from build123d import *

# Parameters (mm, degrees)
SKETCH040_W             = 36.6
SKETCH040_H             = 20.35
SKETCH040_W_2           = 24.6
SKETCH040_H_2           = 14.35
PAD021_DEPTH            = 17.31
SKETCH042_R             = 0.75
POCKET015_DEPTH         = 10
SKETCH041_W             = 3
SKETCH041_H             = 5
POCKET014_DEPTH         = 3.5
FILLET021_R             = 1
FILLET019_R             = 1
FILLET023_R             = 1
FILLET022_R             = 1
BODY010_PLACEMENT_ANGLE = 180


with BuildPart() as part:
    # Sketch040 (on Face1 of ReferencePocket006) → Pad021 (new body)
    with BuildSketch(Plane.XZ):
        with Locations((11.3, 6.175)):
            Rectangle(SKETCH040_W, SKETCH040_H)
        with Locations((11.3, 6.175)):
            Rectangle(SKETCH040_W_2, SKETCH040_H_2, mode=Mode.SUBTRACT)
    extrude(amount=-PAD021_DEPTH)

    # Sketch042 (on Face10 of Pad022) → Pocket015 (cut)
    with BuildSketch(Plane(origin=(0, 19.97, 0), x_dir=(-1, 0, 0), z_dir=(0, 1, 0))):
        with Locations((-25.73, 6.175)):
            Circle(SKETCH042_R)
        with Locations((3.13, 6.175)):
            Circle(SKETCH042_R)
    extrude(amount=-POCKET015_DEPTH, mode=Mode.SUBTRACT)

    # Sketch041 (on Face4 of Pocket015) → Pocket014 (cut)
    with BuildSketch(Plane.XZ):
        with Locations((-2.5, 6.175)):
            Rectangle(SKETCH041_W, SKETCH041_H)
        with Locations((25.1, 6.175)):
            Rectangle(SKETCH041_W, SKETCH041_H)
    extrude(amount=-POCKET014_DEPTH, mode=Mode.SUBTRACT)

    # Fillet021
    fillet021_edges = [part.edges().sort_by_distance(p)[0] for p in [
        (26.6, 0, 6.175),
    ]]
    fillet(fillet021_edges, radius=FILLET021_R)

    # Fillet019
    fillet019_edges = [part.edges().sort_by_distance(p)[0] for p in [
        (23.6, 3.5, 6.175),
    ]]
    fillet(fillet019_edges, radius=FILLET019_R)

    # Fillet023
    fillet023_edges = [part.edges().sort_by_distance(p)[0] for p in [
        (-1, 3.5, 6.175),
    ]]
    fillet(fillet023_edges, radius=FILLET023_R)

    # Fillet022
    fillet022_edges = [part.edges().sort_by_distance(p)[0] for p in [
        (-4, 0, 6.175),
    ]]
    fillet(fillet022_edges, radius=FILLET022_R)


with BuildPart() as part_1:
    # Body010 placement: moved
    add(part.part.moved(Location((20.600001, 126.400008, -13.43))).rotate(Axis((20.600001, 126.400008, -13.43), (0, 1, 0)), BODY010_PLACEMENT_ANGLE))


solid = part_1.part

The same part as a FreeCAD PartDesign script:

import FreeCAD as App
import Part
import Sketcher
from FreeCAD import Vector


def edges_at(feature, points):
    """Names of the edges that pass closest to the given points."""
    edges = feature.Shape.Edges
    near = lambda p: min(range(len(edges)), key=lambda i: edges[i].distToShape(Part.Vertex(*p))[0])
    return sorted({f"Edge{near(p) + 1}" for p in points})


def add_polygon(sketch, points):
    """Adds a closed chain of lines whose ends are joined by coincident constraints."""
    first, n = sketch.GeometryCount, len(points)
    for a, b in zip(points, points[1:] + points[:1]):
        sketch.addGeometry(Part.LineSegment(App.Vector(*a, 0), App.Vector(*b, 0)), False)
    for i in range(n):
        sketch.addConstraint(Sketcher.Constraint("Coincident", first + i, 2, first + (i + 1) % n, 1))

doc = App.newDocument("Part")
params = doc.addObject("Spreadsheet::Sheet", "Params")
for row, (alias, value) in enumerate([
    ("sketch1_width", "36.6 mm"),
    ("sketch1_width2", "24.6 mm"),
    ("sketch1_height", "20.35 mm"),
    ("pad1_length", "17.31 mm"),
    ("sketch2_diameter", "1.5 mm"),
    ("pocket1_length", "10 mm"),
    ("sketch3_width", "3 mm"),
    ("sketch3_height", "5 mm"),
    ("pocket2_length", "3.5 mm"),
    ("fillet_radius", "1 mm"),
    ("fillet2_radius", "1 mm"),
    ("fillet3_radius", "1 mm"),
    ("fillet4_radius", "1 mm"),
], start=1):
    params.set(f"A{row}", alias)
    params.set(f"B{row}", "=" + value)
    params.setAlias(f"B{row}", alias)

body = doc.addObject("PartDesign::Body", "Body")

# Sketch on XZ plane
sketch1 = body.newObject("Sketcher::SketchObject", "Sketch")
sketch1.AttachmentSupport = (doc.getObject("XZ_Plane"), [""])
sketch1.MapMode = "FlatFace"
add_polygon(sketch1, [(-7, 16.35), (-7, -4), (29.6, -4), (29.6, 16.35)])  # lines 0-3
add_polygon(sketch1, [(23.6, -1), (-1, -1), (-1, 13.35), (23.6, 13.35)])  # lines 4-7
sketch1.addConstraint(Sketcher.Constraint("Vertical", 0))
sketch1.addConstraint(Sketcher.Constraint("Horizontal", 1))
sketch1.addConstraint(Sketcher.Constraint("Vertical", 2))
sketch1.addConstraint(Sketcher.Constraint("Horizontal", 3))
sketch1.addConstraint(Sketcher.Constraint("Horizontal", 4))
sketch1.addConstraint(Sketcher.Constraint("Vertical", 5))
sketch1.addConstraint(Sketcher.Constraint("Horizontal", 6))
sketch1.addConstraint(Sketcher.Constraint("Vertical", 7))
sketch1.addConstraint(Sketcher.Constraint("DistanceX", 1, 1, 1, 2, 36.6))
sketch1.addConstraint(Sketcher.Constraint("DistanceX", 4, 2, 4, 1, 24.6))
sketch1.addConstraint(Sketcher.Constraint("DistanceX", 0, 2, -1, 1, 7.0))
sketch1.addConstraint(Sketcher.Constraint("DistanceY", 0, 2, -1, 1, 4.0))
sketch1.addConstraint(Sketcher.Constraint("DistanceX", 4, 2, -1, 1, 1.0))
sketch1.addConstraint(Sketcher.Constraint("DistanceY", 4, 2, -1, 1, 1.0))
sketch1.addConstraint(Sketcher.Constraint("DistanceY", 5, 2, 3, 2, 3.0))
sketch1.addConstraint(Sketcher.Constraint("DistanceY", 0, 2, 0, 1, 20.35))
sketch1.setExpression("Constraints[16]", "Params.sketch1_width")
sketch1.setExpression("Constraints[17]", "Params.sketch1_width2")
sketch1.setExpression("Constraints[23]", "Params.sketch1_height")
pad1 = body.newObject("PartDesign::Pad", "Pad")
pad1.Profile = sketch1
pad1.setExpression("Length", "Params.pad1_length")
pad1.Reversed = True

# Sketch on XZ plane
sketch2 = body.newObject("Sketcher::SketchObject", "Sketch001")
sketch2.AttachmentSupport = (doc.getObject("XZ_Plane"), [""])
sketch2.MapMode = "FlatFace"
sketch2.AttachmentOffset = App.Placement(Vector(0, 0, -19.97), App.Rotation())
sketch2.addGeometry(Part.Circle(Vector(25.73, 6.175, 0), Vector(0, 0, 1), 0.75), False)
sketch2.addGeometry(Part.Circle(Vector(-3.13, 6.175, 0), Vector(0, 0, 1), 0.75), False)
sketch2.addConstraint(Sketcher.Constraint("Equal", 0, 1))
sketch2.addConstraint(Sketcher.Constraint("Horizontal", 0, 3, 1, 3))
sketch2.addConstraint(Sketcher.Constraint("Diameter", 0, 1.5))
sketch2.addConstraint(Sketcher.Constraint("DistanceX", -1, 1, 0, 3, 25.73))
sketch2.addConstraint(Sketcher.Constraint("DistanceX", 1, 3, -1, 1, 3.13))
sketch2.addConstraint(Sketcher.Constraint("DistanceY", -1, 1, 0, 3, 6.175))
sketch2.setExpression("Constraints[2]", "Params.sketch2_diameter")
pocket1 = body.newObject("PartDesign::Pocket", "Pocket")
pocket1.Profile = sketch2
pocket1.setExpression("Length", "Params.pocket1_length")
pocket1.Reversed = True

# Sketch on XZ plane
sketch3 = body.newObject("Sketcher::SketchObject", "Sketch002")
sketch3.AttachmentSupport = (doc.getObject("XZ_Plane"), [""])
sketch3.MapMode = "FlatFace"
add_polygon(sketch3, [(-4, 8.675), (-4, 3.675), (-1, 3.675), (-1, 8.675)])  # lines 0-3
add_polygon(sketch3, [(23.6, 8.675), (23.6, 3.675), (26.6, 3.675), (26.6, 8.675)])  # lines 4-7
sketch3.addConstraint(Sketcher.Constraint("Vertical", 0))
sketch3.addConstraint(Sketcher.Constraint("Horizontal", 1))
sketch3.addConstraint(Sketcher.Constraint("Vertical", 2))
sketch3.addConstraint(Sketcher.Constraint("Horizontal", 3))
sketch3.addConstraint(Sketcher.Constraint("Vertical", 4))
sketch3.addConstraint(Sketcher.Constraint("Horizontal", 5))
sketch3.addConstraint(Sketcher.Constraint("Vertical", 6))
sketch3.addConstraint(Sketcher.Constraint("Horizontal", 7))
sketch3.addConstraint(Sketcher.Constraint("Horizontal", 1, 2, 4, 2))
sketch3.addConstraint(Sketcher.Constraint("Horizontal", 3, 2, 6, 2))
sketch3.addConstraint(Sketcher.Constraint("Equal", 3, 5))
sketch3.addConstraint(Sketcher.Constraint("DistanceX", 1, 1, 1, 2, 3.0))
sketch3.addConstraint(Sketcher.Constraint("DistanceY", 0, 2, 0, 1, 5.0))
sketch3.addConstraint(Sketcher.Constraint("DistanceX", 0, 2, -1, 1, 4.0))
sketch3.addConstraint(Sketcher.Constraint("DistanceX", -1, 1, 4, 2, 23.6))
sketch3.addConstraint(Sketcher.Constraint("DistanceY", -1, 1, 0, 2, 3.675))
sketch3.setExpression("Constraints[19]", "Params.sketch3_width")
sketch3.setExpression("Constraints[20]", "Params.sketch3_height")
pocket2 = body.newObject("PartDesign::Pocket", "Pocket001")
pocket2.Profile = sketch3
pocket2.setExpression("Length", "Params.pocket2_length")
doc.recompute()

fillet = body.newObject("PartDesign::Fillet", "Fillet")
fillet.Base = (pocket2, edges_at(pocket2, [(26.6, 0, 6.175)]))
fillet.setExpression("Radius", "Params.fillet_radius")
doc.recompute()

fillet2 = body.newObject("PartDesign::Fillet", "Fillet001")
fillet2.Base = (fillet, edges_at(fillet, [(23.6, 3.5, 6.175)]))
fillet2.setExpression("Radius", "Params.fillet2_radius")
doc.recompute()

fillet3 = body.newObject("PartDesign::Fillet", "Fillet002")
fillet3.Base = (fillet2, edges_at(fillet2, [(-1, 3.5, 6.175)]))
fillet3.setExpression("Radius", "Params.fillet3_radius")
doc.recompute()

fillet4 = body.newObject("PartDesign::Fillet", "Fillet003")
fillet4.Base = (fillet3, edges_at(fillet3, [(-4, 0, 6.175)]))
fillet4.setExpression("Radius", "Params.fillet4_radius")
body2 = doc.addObject("PartDesign::Body", "Body001")
doc.recompute()

body.Placement = App.Placement(Vector(20.600001, 126.400008, -13.43), App.Rotation(Vector(0, 1, 0), 180))
boolean = body2.newObject("PartDesign::Boolean", "Boolean")
boolean.Type = "Fuse"
boolean.addObjects([body])

doc.recompute()
